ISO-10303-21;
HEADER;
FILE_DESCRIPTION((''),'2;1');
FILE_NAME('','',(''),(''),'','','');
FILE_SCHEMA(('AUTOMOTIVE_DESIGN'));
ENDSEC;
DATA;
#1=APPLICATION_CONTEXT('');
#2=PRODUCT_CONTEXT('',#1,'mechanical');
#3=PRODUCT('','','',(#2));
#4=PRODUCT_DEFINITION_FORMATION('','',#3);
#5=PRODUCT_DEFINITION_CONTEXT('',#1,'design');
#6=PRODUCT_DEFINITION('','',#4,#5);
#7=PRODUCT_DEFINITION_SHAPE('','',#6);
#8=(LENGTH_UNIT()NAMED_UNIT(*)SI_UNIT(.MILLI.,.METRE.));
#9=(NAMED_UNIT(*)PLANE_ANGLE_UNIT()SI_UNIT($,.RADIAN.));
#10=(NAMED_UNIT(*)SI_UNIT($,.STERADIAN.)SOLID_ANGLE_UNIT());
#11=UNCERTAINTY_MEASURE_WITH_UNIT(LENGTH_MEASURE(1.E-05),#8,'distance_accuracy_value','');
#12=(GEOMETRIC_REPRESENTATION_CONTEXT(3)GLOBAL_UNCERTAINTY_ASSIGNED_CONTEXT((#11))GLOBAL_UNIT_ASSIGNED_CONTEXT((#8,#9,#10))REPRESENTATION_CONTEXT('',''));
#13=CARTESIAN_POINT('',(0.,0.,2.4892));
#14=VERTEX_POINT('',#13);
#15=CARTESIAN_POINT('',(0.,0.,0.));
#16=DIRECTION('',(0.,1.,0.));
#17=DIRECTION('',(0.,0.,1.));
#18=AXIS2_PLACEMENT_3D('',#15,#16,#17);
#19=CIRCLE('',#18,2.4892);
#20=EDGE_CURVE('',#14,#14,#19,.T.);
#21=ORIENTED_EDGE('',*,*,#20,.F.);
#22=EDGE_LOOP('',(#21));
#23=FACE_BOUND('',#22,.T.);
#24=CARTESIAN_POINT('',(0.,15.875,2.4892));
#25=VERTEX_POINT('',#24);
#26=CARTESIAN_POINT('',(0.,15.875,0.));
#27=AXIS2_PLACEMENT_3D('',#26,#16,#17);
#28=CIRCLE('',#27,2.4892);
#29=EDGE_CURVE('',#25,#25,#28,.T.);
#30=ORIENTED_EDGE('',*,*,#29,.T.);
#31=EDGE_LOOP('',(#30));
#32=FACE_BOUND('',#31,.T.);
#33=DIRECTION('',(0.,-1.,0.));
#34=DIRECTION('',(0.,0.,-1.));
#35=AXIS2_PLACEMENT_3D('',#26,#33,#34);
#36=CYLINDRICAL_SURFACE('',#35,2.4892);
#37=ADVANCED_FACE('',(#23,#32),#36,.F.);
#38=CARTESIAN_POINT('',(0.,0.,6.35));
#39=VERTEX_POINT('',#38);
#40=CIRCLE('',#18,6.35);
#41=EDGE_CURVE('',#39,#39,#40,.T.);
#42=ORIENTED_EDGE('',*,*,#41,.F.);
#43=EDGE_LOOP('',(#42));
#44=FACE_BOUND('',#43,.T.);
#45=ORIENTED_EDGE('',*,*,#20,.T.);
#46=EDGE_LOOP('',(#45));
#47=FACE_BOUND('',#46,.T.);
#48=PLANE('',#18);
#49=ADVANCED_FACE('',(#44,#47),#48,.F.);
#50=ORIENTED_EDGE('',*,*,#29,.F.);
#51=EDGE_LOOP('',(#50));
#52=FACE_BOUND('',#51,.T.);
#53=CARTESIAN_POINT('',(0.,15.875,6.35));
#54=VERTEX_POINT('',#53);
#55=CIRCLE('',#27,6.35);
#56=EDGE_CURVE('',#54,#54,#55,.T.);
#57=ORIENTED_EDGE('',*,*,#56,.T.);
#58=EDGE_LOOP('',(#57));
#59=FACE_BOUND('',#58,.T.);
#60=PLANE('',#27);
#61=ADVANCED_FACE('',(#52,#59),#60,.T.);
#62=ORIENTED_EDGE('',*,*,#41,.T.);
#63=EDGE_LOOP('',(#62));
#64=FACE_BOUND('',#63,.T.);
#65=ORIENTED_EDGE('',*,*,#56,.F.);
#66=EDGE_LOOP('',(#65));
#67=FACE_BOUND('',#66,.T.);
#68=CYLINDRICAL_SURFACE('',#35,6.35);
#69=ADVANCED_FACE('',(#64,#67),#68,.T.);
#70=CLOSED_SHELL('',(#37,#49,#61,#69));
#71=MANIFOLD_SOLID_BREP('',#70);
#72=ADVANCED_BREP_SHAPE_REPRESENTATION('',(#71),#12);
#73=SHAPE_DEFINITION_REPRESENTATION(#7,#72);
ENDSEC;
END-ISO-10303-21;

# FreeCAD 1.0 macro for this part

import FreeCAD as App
import Part
import Sketcher

V = App.Vector
Q = App.Units.Quantity

doc = App.newDocument("Part")
body = doc.addObject("PartDesign::Body", "Body")

# Sketch on XZ plane
sketch1 = body.newObject("Sketcher::SketchObject", "Sketch")
sketch1.AttachmentSupport = (doc.getObject("XZ_Plane"), [""])
sketch1.MapMode = "FlatFace"
sketch1.addGeometry(Part.Circle(V(0, 0, 0), V(0, 0, 1), 6.35), False)
sketch1.addGeometry(Part.Circle(V(0, 0, 0), V(0, 0, 1), 2.4892), False)
sketch1.addConstraint(Sketcher.Constraint("Coincident", 0, 3, -1, 1))
sketch1.addConstraint(Sketcher.Constraint("Coincident", 1, 3, -1, 1))
sketch1.addConstraint(Sketcher.Constraint("Diameter", 0, Q("0.5 in")))
sketch1.addConstraint(Sketcher.Constraint("Diameter", 1, Q("0.196 in")))
pad1 = body.newObject("PartDesign::Pad", "Pad")
pad1.Profile = sketch1
pad1.Length = Q("0.625 in")
pad1.Reversed = True

doc.recompute()
